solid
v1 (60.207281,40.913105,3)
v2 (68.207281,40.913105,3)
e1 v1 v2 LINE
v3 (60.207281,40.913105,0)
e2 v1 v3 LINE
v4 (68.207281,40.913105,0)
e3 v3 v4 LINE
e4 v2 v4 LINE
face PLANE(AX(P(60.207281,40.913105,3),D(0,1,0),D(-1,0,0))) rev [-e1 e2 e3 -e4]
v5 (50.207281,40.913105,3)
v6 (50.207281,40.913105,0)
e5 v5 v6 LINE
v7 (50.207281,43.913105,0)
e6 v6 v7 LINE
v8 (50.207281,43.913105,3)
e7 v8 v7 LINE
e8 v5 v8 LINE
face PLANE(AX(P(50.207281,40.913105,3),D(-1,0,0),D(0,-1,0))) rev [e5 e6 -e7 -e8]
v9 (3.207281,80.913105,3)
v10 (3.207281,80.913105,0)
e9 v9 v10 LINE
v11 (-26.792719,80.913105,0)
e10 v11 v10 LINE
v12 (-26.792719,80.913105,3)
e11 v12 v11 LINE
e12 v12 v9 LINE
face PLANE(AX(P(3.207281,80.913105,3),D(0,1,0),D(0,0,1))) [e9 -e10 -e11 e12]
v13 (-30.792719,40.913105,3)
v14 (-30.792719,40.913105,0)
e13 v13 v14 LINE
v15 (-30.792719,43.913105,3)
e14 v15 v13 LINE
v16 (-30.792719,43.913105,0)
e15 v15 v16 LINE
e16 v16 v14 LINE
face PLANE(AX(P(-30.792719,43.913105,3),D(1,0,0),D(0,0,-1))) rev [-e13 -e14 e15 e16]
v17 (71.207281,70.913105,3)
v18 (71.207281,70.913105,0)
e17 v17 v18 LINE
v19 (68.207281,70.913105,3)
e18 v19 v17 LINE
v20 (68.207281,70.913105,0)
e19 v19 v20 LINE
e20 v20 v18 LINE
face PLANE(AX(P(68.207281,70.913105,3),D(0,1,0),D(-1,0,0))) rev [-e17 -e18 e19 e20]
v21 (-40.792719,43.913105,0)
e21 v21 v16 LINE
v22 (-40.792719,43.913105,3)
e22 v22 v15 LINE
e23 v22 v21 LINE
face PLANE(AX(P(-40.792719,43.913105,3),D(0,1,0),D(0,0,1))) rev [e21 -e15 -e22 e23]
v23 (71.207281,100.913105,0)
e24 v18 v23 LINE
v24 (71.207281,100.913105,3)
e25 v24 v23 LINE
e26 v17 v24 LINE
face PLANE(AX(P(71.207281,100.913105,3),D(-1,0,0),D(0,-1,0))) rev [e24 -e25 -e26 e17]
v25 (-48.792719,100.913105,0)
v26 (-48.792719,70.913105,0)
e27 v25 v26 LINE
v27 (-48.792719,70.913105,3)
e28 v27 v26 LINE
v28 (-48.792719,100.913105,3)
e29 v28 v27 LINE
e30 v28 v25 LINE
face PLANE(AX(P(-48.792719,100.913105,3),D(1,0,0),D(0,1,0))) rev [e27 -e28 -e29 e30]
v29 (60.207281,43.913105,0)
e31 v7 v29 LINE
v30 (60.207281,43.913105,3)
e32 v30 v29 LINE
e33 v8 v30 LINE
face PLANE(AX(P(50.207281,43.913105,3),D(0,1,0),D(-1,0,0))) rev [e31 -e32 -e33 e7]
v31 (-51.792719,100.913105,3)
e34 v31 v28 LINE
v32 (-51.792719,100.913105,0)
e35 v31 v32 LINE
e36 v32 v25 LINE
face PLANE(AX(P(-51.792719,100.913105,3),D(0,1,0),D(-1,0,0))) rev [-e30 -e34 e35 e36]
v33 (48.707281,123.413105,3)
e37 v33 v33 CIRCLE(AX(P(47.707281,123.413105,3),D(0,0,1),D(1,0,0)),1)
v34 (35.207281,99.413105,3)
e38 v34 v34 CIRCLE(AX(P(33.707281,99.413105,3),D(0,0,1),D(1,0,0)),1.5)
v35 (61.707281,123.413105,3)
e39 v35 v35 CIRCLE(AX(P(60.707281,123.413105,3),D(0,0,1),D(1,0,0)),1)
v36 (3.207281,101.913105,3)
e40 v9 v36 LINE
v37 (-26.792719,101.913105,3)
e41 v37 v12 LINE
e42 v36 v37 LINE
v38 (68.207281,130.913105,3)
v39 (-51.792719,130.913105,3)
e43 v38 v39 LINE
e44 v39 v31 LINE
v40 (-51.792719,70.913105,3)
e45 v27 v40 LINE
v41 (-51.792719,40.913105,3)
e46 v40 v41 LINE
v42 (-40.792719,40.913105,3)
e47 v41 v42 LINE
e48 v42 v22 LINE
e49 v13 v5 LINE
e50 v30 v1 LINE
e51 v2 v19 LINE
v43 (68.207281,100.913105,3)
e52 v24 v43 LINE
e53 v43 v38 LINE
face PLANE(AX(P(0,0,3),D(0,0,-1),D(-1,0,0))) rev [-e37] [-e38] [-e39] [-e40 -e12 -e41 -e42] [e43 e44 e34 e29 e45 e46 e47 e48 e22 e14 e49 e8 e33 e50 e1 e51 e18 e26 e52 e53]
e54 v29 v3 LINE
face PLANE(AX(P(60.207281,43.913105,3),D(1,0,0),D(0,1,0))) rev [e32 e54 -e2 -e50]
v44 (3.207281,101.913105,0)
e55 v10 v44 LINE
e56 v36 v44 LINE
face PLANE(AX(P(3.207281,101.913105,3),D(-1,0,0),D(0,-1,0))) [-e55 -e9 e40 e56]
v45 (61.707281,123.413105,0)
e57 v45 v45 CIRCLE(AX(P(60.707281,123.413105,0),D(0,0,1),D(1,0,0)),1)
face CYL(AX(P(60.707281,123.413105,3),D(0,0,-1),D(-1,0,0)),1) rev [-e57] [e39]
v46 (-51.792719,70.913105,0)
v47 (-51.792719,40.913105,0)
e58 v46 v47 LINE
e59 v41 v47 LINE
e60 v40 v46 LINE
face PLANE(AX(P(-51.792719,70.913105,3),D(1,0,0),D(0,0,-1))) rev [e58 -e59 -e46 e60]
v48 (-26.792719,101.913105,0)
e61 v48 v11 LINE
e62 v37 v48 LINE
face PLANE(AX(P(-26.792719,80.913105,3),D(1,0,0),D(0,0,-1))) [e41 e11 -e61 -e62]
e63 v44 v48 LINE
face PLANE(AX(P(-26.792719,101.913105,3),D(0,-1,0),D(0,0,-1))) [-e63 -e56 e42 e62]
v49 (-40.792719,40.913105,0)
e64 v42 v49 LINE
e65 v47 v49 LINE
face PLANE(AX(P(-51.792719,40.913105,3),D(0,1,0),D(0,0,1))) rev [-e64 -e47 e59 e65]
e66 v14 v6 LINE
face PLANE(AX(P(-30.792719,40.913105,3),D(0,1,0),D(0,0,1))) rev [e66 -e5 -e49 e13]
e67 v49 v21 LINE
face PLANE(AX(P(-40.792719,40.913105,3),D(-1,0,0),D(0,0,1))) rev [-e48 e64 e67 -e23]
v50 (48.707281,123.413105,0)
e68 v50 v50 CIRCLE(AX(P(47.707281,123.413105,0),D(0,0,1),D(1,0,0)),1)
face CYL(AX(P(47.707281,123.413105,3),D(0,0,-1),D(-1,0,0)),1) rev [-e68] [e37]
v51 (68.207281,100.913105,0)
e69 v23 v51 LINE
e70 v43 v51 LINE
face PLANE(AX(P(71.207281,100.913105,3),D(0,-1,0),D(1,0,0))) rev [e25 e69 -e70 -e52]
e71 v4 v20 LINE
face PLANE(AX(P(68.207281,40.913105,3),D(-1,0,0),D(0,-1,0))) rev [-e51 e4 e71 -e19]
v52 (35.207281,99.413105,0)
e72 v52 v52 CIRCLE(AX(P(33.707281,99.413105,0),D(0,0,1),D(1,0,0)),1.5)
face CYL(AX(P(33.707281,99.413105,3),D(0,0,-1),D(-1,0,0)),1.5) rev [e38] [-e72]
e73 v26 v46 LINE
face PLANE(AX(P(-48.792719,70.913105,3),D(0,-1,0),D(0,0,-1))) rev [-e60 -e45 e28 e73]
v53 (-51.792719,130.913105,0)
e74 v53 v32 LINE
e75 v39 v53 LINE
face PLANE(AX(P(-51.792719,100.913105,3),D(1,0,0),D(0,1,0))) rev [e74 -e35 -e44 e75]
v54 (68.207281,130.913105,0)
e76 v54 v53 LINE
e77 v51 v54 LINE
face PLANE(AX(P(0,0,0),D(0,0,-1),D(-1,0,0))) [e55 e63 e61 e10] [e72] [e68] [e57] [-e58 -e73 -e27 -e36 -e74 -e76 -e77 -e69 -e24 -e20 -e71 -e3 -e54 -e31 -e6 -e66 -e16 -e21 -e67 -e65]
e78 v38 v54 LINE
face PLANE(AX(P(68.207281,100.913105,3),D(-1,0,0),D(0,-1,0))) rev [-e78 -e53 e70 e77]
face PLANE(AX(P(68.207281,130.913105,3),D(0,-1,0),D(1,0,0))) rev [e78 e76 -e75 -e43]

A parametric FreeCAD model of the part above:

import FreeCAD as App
import Part
import Sketcher

V = App.Vector

doc = App.newDocument("Part")
body = doc.addObject("PartDesign::Body", "Body")

# Sketch on XY plane
sketch1 = body.newObject("Sketcher::SketchObject", "Sketch")
sketch1.AttachmentSupport = (doc.getObject("XY_Plane"), [""])
sketch1.MapMode = "FlatFace"
sketch1.addGeometry([
    Part.LineSegment(V(71.2, 70.9, 0), V(71.2, 100.9, 0)),  # 0
    Part.LineSegment(V(71.2, 100.9, 0), V(68.2, 100.9, 0)),  # 1
    Part.LineSegment(V(68.2, 100.9, 0), V(68.2, 130.9, 0)),  # 2
    Part.LineSegment(V(68.2, 130.9, 0), V(-51.8, 130.9, 0)),  # 3
    Part.LineSegment(V(-51.8, 130.9, 0), V(-51.8, 100.9, 0)),  # 4
    Part.LineSegment(V(-51.8, 100.9, 0), V(-48.8, 100.9, 0)),  # 5
    Part.LineSegment(V(-48.8, 100.9, 0), V(-48.8, 70.9, 0)),  # 6
    Part.LineSegment(V(-48.8, 70.9, 0), V(-51.8, 70.9, 0)),  # 7
    Part.LineSegment(V(-51.8, 70.9, 0), V(-51.8, 40.9, 0)),  # 8
    Part.LineSegment(V(-51.8, 40.9, 0), V(-40.8, 40.9, 0)),  # 9
    Part.LineSegment(V(-40.8, 40.9, 0), V(-40.8, 43.9, 0)),  # 10
    Part.LineSegment(V(-40.8, 43.9, 0), V(-30.8, 43.9, 0)),  # 11
    Part.LineSegment(V(-30.8, 43.9, 0), V(-30.8, 40.9, 0)),  # 12
    Part.LineSegment(V(-30.8, 40.9, 0), V(50.2, 40.9, 0)),  # 13
    Part.LineSegment(V(50.2, 40.9, 0), V(50.2, 43.9, 0)),  # 14
    Part.LineSegment(V(50.2, 43.9, 0), V(60.2, 43.9, 0)),  # 15
    Part.LineSegment(V(60.2, 43.9, 0), V(60.2, 40.9, 0)),  # 16
    Part.LineSegment(V(60.2, 40.9, 0), V(68.2, 40.9, 0)),  # 17
    Part.LineSegment(V(68.2, 40.9, 0), V(68.2, 70.9, 0)),  # 18
    Part.LineSegment(V(68.2, 70.9, 0), V(71.2, 70.9, 0)),  # 19
    Part.Circle(V(33.7, 99.4, 0), V(0, 0, 1), 1.5),  # 20
    Part.LineSegment(V(-26.8, 80.9, 0), V(-26.8, 101.9, 0)),  # 21
    Part.LineSegment(V(-26.8, 101.9, 0), V(3.2, 101.9, 0)),  # 22
    Part.LineSegment(V(3.2, 101.9, 0), V(3.2, 80.9, 0)),  # 23
    Part.LineSegment(V(3.2, 80.9, 0), V(-26.8, 80.9, 0)),  # 24
    Part.Circle(V(60.7, 123.4, 0), V(0, 0, 1), 1),  # 25
    Part.Circle(V(47.7, 123.4, 0), V(0, 0, 1), 1),  # 26
], False)
sketch1.addConstraint([
    Sketcher.Constraint("Coincident", 0, 2, 1, 1),
    Sketcher.Constraint("Coincident", 1, 2, 2, 1),
    Sketcher.Constraint("Coincident", 2, 2, 3, 1),
    Sketcher.Constraint("Coincident", 3, 2, 4, 1),
    Sketcher.Constraint("Coincident", 4, 2, 5, 1),
    Sketcher.Constraint("Coincident", 5, 2, 6, 1),
    Sketcher.Constraint("Coincident", 6, 2, 7, 1),
    Sketcher.Constraint("Coincident", 7, 2, 8, 1),
    Sketcher.Constraint("Coincident", 8, 2, 9, 1),
    Sketcher.Constraint("Coincident", 9, 2, 10, 1),
    Sketcher.Constraint("Coincident", 10, 2, 11, 1),
    Sketcher.Constraint("Coincident", 11, 2, 12, 1),
    Sketcher.Constraint("Coincident", 12, 2, 13, 1),
    Sketcher.Constraint("Coincident", 13, 2, 14, 1),
    Sketcher.Constraint("Coincident", 14, 2, 15, 1),
    Sketcher.Constraint("Coincident", 15, 2, 16, 1),
    Sketcher.Constraint("Coincident", 16, 2, 17, 1),
    Sketcher.Constraint("Coincident", 17, 2, 18, 1),
    Sketcher.Constraint("Coincident", 18, 2, 19, 1),
    Sketcher.Constraint("Coincident", 19, 2, 0, 1),
    Sketcher.Constraint("Coincident", 21, 2, 22, 1),
    Sketcher.Constraint("Coincident", 22, 2, 23, 1),
    Sketcher.Constraint("Coincident", 23, 2, 24, 1),
    Sketcher.Constraint("Coincident", 24, 2, 21, 1),
    Sketcher.Constraint("Vertical", 0),
    Sketcher.Constraint("Horizontal", 1),
    Sketcher.Constraint("Vertical", 2),
    Sketcher.Constraint("Horizontal", 3),
    Sketcher.Constraint("Vertical", 4),
    Sketcher.Constraint("Horizontal", 5),
    Sketcher.Constraint("Vertical", 6),
    Sketcher.Constraint("Horizontal", 7),
    Sketcher.Constraint("Vertical", 8),
    Sketcher.Constraint("Horizontal", 9),
    Sketcher.Constraint("Vertical", 10),
    Sketcher.Constraint("Horizontal", 11),
    Sketcher.Constraint("Vertical", 12),
    Sketcher.Constraint("Horizontal", 13),
    Sketcher.Constraint("Vertical", 14),
    Sketcher.Constraint("Horizontal", 15),
    Sketcher.Constraint("Vertical", 16),
    Sketcher.Constraint("Horizontal", 17),
    Sketcher.Constraint("Vertical", 18),
    Sketcher.Constraint("Horizontal", 19),
    Sketcher.Constraint("Vertical", 21),
    Sketcher.Constraint("Horizontal", 22),
    Sketcher.Constraint("Vertical", 23),
    Sketcher.Constraint("Horizontal", 24),
    Sketcher.Constraint("Equal", 25, 26),
    Sketcher.Constraint("Horizontal", 25, 3, 26, 3),
    Sketcher.Constraint("Horizontal", 1, 2, 4, 2),
    Sketcher.Constraint("Horizontal", 9, 2, 12, 2),
    Sketcher.Constraint("Horizontal", 11, 2, 14, 2),
    Sketcher.Constraint("Horizontal", 13, 2, 16, 2),
    Sketcher.Constraint("Horizontal", 7, 2, 18, 2),
    Sketcher.Constraint("Vertical", 4, 2, 7, 2),
    Sketcher.Constraint("Vertical", 2, 2, 17, 2),
    Sketcher.Constraint("Equal", 1, 5),
    Sketcher.Constraint("Equal", 11, 15),
    Sketcher.Constraint("Equal", 24, 0),
    Sketcher.Constraint("Equal", 0, 2),
    Sketcher.Constraint("Equal", 6, 8),
    Sketcher.Constraint("Equal", 19, 10),
    Sketcher.Constraint("Diameter", 20, 3.0),
    Sketcher.Constraint("Diameter", 25, 2.0),
    Sketcher.Constraint("DistanceX", 1, 2, 1, 1, 3.0),
    Sketcher.Constraint("DistanceX", 3, 2, 3, 1, 120.0),
    Sketcher.Constraint("DistanceX", 9, 1, 9, 2, 11.0),
    Sketcher.Constraint("DistanceX", 11, 1, 11, 2, 10.0),
    Sketcher.Constraint("DistanceX", 13, 1, 13, 2, 81.0),
    Sketcher.Constraint("DistanceX", 22, 1, 22, 2, 30.0),
    Sketcher.Constraint("DistanceY", 21, 1, 21, 2, 21.0),
    Sketcher.Constraint("DistanceX", 20, 3, 25, 3, 27.0),
    Sketcher.Constraint("DistanceY", 20, 3, 25, 3, 24.0),
    Sketcher.Constraint("DistanceX", 26, 3, 25, 3, 13.0),
    Sketcher.Constraint("DistanceX", 5, 2, 21, 2, 22.0),
    Sketcher.Constraint("DistanceY", 5, 2, 21, 2, 1.0),
    Sketcher.Constraint("DistanceX", 25, 3, 0, 2, 10.5),
    Sketcher.Constraint("DistanceY", 0, 2, 25, 3, 22.5),
    Sketcher.Constraint("DistanceX", -1, 1, 20, 3, 33.707281),
    Sketcher.Constraint("DistanceY", -1, 1, 20, 3, 99.413105),
])
pad1 = body.newObject("PartDesign::Pad", "Pad")
pad1.Profile = sketch1
pad1.Length = 3

doc.recompute()
